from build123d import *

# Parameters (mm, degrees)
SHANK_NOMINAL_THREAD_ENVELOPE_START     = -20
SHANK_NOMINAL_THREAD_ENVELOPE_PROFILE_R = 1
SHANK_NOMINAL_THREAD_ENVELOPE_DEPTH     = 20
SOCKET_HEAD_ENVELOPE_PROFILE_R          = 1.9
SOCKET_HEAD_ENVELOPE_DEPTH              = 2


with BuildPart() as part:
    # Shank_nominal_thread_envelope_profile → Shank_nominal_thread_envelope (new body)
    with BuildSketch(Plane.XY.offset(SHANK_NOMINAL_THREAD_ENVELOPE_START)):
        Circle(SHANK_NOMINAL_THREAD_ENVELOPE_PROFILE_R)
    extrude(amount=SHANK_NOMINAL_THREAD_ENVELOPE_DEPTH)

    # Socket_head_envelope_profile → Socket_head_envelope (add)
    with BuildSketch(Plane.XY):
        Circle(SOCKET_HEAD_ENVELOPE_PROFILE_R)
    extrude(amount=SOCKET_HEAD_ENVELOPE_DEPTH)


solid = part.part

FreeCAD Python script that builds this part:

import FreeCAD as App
import Part
import Sketcher
Q = App.Units.Quantity

doc = App.newDocument("Part")
params = doc.addObject("Spreadsheet::Sheet", "Params")
for row, (alias, value) in enumerate([
    ("sketch1_diameter", "2 mm"),
    ("pad1_length", "20 mm"),
    ("sketch2_diameter", "3.8 mm"),
    ("pad2_length", "2 mm"),
], start=1):
    params.set(f"A{row}", alias)
    params.set(f"B{row}", "=" + value)
    params.setAlias(f"B{row}", alias)

body = doc.addObject("PartDesign::Body", "Body")

# Sketch on XY plane
sketch1 = body.newObject("Sketcher::SketchObject", "Sketch")
sketch1.AttachmentSupport = (doc.getObject("XY_Plane"), [""])
sketch1.MapMode = "FlatFace"
sketch1.AttachmentOffset = App.Placement(App.Vector(0, 0, -20), App.Rotation())
sketch1.addGeometry(Part.Circle(App.Vector(0, 0, 0), App.Vector(0, 0, 1), 1), False)
sketch1.addConstraint([
    Sketcher.Constraint("Coincident", 0, 3, -1, 1),
    Sketcher.Constraint("Diameter", 0, Q("2 mm")),
])
sketch1.setExpression("Constraints[1]", "Params.sketch1_diameter")
pad1 = body.newObject("PartDesign::Pad", "Pad")
pad1.Profile = sketch1
pad1.setExpression("Length", "Params.pad1_length")

# Sketch on XY plane
sketch2 = body.newObject("Sketcher::SketchObject", "Sketch001")
sketch2.AttachmentSupport = (doc.getObject("XY_Plane"), [""])
sketch2.MapMode = "FlatFace"
sketch2.addGeometry(Part.Circle(App.Vector(0, 0, 0), App.Vector(0, 0, 1), 1.9), False)
sketch2.addConstraint([
    Sketcher.Constraint("Coincident", 0, 3, -1, 1),
    Sketcher.Constraint("Diameter", 0, Q("3.8 mm")),
])
sketch2.setExpression("Constraints[1]", "Params.sketch2_diameter")
pad2 = body.newObject("PartDesign::Pad", "Pad001")
pad2.Profile = sketch2
pad2.setExpression("Length", "Params.pad2_length")

doc.recompute()
